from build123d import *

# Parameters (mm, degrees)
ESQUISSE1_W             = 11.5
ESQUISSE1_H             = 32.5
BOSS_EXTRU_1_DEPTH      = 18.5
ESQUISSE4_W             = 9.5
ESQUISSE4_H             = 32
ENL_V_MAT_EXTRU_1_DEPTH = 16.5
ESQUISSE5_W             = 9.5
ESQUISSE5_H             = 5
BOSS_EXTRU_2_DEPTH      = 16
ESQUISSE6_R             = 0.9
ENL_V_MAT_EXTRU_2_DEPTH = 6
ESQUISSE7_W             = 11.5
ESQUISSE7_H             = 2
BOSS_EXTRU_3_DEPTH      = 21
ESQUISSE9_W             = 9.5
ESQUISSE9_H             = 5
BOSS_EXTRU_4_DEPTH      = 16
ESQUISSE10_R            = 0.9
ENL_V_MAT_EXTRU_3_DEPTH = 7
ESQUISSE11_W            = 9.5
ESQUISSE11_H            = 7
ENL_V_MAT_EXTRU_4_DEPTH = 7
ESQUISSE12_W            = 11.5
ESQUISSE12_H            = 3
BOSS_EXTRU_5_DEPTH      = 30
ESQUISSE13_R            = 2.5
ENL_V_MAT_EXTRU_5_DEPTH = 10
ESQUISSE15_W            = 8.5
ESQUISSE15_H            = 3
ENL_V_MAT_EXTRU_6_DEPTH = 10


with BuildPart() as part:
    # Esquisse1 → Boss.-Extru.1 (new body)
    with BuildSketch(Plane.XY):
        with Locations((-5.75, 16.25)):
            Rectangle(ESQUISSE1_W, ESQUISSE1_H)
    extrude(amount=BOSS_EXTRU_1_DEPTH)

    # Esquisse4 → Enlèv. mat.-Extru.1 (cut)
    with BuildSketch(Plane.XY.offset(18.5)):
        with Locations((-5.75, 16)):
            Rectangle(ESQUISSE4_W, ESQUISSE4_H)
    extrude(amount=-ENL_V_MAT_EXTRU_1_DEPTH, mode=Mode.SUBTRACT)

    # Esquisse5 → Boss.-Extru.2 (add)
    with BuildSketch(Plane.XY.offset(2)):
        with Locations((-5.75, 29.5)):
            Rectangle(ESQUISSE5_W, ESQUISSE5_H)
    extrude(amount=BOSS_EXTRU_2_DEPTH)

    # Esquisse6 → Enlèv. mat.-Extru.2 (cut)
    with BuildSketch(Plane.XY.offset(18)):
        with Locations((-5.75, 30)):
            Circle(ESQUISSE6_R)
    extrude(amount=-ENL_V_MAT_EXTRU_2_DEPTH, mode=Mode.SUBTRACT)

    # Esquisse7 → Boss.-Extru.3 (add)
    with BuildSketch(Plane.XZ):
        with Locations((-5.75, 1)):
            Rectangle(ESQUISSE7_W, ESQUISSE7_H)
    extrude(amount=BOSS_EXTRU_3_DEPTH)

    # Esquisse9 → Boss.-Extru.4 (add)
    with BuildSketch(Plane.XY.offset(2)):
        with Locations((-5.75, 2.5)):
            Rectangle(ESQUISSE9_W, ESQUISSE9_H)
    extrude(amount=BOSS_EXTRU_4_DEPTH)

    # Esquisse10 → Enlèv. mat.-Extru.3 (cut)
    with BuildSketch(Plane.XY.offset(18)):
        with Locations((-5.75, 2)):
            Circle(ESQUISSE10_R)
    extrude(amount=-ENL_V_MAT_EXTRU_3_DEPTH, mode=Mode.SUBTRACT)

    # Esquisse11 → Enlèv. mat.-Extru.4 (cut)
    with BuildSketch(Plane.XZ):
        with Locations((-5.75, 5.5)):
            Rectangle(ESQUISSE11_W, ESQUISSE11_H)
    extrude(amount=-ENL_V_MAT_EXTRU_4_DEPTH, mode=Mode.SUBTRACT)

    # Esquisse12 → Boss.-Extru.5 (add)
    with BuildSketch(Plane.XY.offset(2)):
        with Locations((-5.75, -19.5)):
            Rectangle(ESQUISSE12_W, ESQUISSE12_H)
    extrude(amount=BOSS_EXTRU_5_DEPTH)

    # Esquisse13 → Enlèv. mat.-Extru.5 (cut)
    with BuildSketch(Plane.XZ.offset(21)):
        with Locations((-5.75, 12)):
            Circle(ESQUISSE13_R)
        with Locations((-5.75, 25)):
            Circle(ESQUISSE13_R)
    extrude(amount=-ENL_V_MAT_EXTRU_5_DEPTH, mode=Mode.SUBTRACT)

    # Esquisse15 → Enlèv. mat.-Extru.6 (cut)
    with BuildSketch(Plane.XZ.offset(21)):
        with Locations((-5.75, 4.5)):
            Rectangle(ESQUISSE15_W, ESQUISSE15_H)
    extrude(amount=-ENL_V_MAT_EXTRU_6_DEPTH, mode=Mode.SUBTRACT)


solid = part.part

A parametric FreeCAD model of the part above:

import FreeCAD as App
import Part
import Sketcher

V = App.Vector


def add_polygon(sketch, points):
    """Adds a closed chain of lines whose ends are joined by coincident constraints."""
    first, n = sketch.GeometryCount, len(points)
    for a, b in zip(points, points[1:] + points[:1]):
        sketch.addGeometry(Part.LineSegment(App.Vector(*a, 0), App.Vector(*b, 0)), False)
    for i in range(n):
        sketch.addConstraint(Sketcher.Constraint("Coincident", first + i, 2, first + (i + 1) % n, 1))

doc = App.newDocument("Part")
params = doc.addObject("Spreadsheet::Sheet", "Params")
for row, (alias, value) in enumerate([
    ("sketch1_width", "11.5 mm"),
    ("sketch1_height", "32.5 mm"),
    ("pad1_length", "18.5 mm"),
    ("sketch2_height", "32 mm"),
    ("sketch2_width", "9.5 mm"),
    ("pocket1_length", "16.5 mm"),
    ("sketch3_height", "5 mm"),
    ("sketch3_width", "9.5 mm"),
    ("pad2_length", "16 mm"),
    ("sketch4_diameter", "1.8 mm"),
    ("pocket2_length", "6 mm"),
    ("sketch5_height", "2 mm"),
    ("sketch5_width", "11.5 mm"),
    ("pad3_length", "21 mm"),
    ("sketch6_height", "5 mm"),
    ("sketch6_width", "9.5 mm"),
    ("pad4_length", "16 mm"),
    ("sketch7_diameter", "1.8 mm"),
    ("pocket3_length", "7 mm"),
    ("sketch8_height", "7 mm"),
    ("sketch8_width", "9.5 mm"),
    ("pocket4_length", "7 mm"),
    ("sketch9_height", "3 mm"),
    ("sketch9_width", "11.5 mm"),
    ("pad5_length", "30 mm"),
    ("sketch10_diameter", "5 mm"),
    ("pocket5_length", "10 mm"),
    ("sketch11_height", "3 mm"),
    ("sketch11_width", "8.5 mm"),
    ("pocket6_length", "10 mm"),
], start=1):
    params.set(f"A{row}", alias)
    params.set(f"B{row}", "=" + value)
    params.setAlias(f"B{row}", alias)

body = doc.addObject("PartDesign::Body", "Body")

sketch1 = body.newObject("Sketcher::SketchObject", "Sketch")
sketch1.AttachmentSupport = (doc.getObject("XY_Plane"), [""])
sketch1.MapMode = "FlatFace"
add_polygon(sketch1, [(-11.5, 32.5), (-11.5, 0), (0, 0), (0, 32.5)])
sketch1.addConstraint(Sketcher.Constraint("Vertical", 0))
sketch1.addConstraint(Sketcher.Constraint("Horizontal", 1))
sketch1.addConstraint(Sketcher.Constraint("Vertical", 2))
sketch1.addConstraint(Sketcher.Constraint("Horizontal", 3))
sketch1.addConstraint(Sketcher.Constraint("Coincident", 1, 2, -1, 1))
sketch1.addConstraint(Sketcher.Constraint("DistanceX", 1, 1, 1, 2, 11.5))
sketch1.addConstraint(Sketcher.Constraint("DistanceY", 0, 2, 0, 1, 32.5))
sketch1.setExpression("Constraints[9]", "Params.sketch1_width")
sketch1.setExpression("Constraints[10]", "Params.sketch1_height")
pad1 = body.newObject("PartDesign::Pad", "Pad")
pad1.Profile = sketch1
pad1.setExpression("Length", "Params.pad1_length")

sketch2 = body.newObject("Sketcher::SketchObject", "Sketch001")
sketch2.AttachmentSupport = (doc.getObject("XY_Plane"), [""])
sketch2.MapMode = "FlatFace"
sketch2.AttachmentOffset = App.Placement(V(0, 0, 18.5), App.Rotation())
add_polygon(sketch2, [(-10.5, 32), (-10.5, 0), (-1, 0), (-1, 32)])
sketch2.addConstraint(Sketcher.Constraint("Vertical", 0))
sketch2.addConstraint(Sketcher.Constraint("Horizontal", 1))
sketch2.addConstraint(Sketcher.Constraint("Vertical", 2))
sketch2.addConstraint(Sketcher.Constraint("Horizontal", 3))
sketch2.addConstraint(Sketcher.Constraint("PointOnObject", 0, 2, -1))
sketch2.addConstraint(Sketcher.Constraint("DistanceY", 0, 2, 0, 1, 32.0))
sketch2.addConstraint(Sketcher.Constraint("DistanceX", 1, 1, 1, 2, 9.5))
sketch2.addConstraint(Sketcher.Constraint("DistanceX", 1, 2, -1, 1, 1.0))
sketch2.setExpression("Constraints[9]", "Params.sketch2_height")
sketch2.setExpression("Constraints[10]", "Params.sketch2_width")
pocket1 = body.newObject("PartDesign::Pocket", "Pocket")
pocket1.Profile = sketch2
pocket1.setExpression("Length", "Params.pocket1_length")

sketch3 = body.newObject("Sketcher::SketchObject", "Sketch002")
sketch3.AttachmentSupport = (doc.getObject("XY_Plane"), [""])
sketch3.MapMode = "FlatFace"
sketch3.AttachmentOffset = App.Placement(V(0, 0, 2), App.Rotation())
add_polygon(sketch3, [(-10.5, 32), (-10.5, 27), (-1, 27), (-1, 32)])
sketch3.addConstraint(Sketcher.Constraint("Vertical", 0))
sketch3.addConstraint(Sketcher.Constraint("Horizontal", 1))
sketch3.addConstraint(Sketcher.Constraint("Vertical", 2))
sketch3.addConstraint(Sketcher.Constraint("Horizontal", 3))
sketch3.addConstraint(Sketcher.Constraint("DistanceY", 0, 2, 0, 1, 5.0))
sketch3.addConstraint(Sketcher.Constraint("DistanceX", 1, 1, 1, 2, 9.5))
sketch3.addConstraint(Sketcher.Constraint("DistanceY", -1, 1, 0, 2, 27.0))
sketch3.addConstraint(Sketcher.Constraint("DistanceX", 1, 2, -1, 1, 1.0))
sketch3.setExpression("Constraints[8]", "Params.sketch3_height")
sketch3.setExpression("Constraints[9]", "Params.sketch3_width")
pad2 = body.newObject("PartDesign::Pad", "Pad001")
pad2.Profile = sketch3
pad2.setExpression("Length", "Params.pad2_length")

sketch4 = body.newObject("Sketcher::SketchObject", "Sketch003")
sketch4.AttachmentSupport = (doc.getObject("XY_Plane"), [""])
sketch4.MapMode = "FlatFace"
sketch4.AttachmentOffset = App.Placement(V(0, 0, 18), App.Rotation())
sketch4.addGeometry(Part.Circle(V(-5.75, 30, 0), V(0, 0, 1), 0.9), False)
sketch4.addConstraint(Sketcher.Constraint("Diameter", 0, 1.8))
sketch4.addConstraint(Sketcher.Constraint("DistanceY", -1, 1, 0, 3, 30.0))
sketch4.addConstraint(Sketcher.Constraint("DistanceX", 0, 3, -1, 1, 5.75))
sketch4.setExpression("Constraints[0]", "Params.sketch4_diameter")
pocket2 = body.newObject("PartDesign::Pocket", "Pocket001")
pocket2.Profile = sketch4
pocket2.setExpression("Length", "Params.pocket2_length")

sketch5 = body.newObject("Sketcher::SketchObject", "Sketch004")
sketch5.AttachmentSupport = (doc.getObject("XZ_Plane"), [""])
sketch5.MapMode = "FlatFace"
add_polygon(sketch5, [(-11.5, 2), (-11.5, 0), (0, 0), (0, 2)])
sketch5.addConstraint(Sketcher.Constraint("Vertical", 0))
sketch5.addConstraint(Sketcher.Constraint("Horizontal", 1))
sketch5.addConstraint(Sketcher.Constraint("Vertical", 2))
sketch5.addConstraint(Sketcher.Constraint("Horizontal", 3))
sketch5.addConstraint(Sketcher.Constraint("Coincident", 1, 2, -1, 1))
sketch5.addConstraint(Sketcher.Constraint("DistanceY", 0, 2, 0, 1, 2.0))
sketch5.addConstraint(Sketcher.Constraint("DistanceX", 1, 1, 1, 2, 11.5))
sketch5.setExpression("Constraints[9]", "Params.sketch5_height")
sketch5.setExpression("Constraints[10]", "Params.sketch5_width")
pad3 = body.newObject("PartDesign::Pad", "Pad002")
pad3.Profile = sketch5
pad3.setExpression("Length", "Params.pad3_length")

sketch6 = body.newObject("Sketcher::SketchObject", "Sketch005")
sketch6.AttachmentSupport = (doc.getObject("XY_Plane"), [""])
sketch6.MapMode = "FlatFace"
sketch6.AttachmentOffset = App.Placement(V(0, 0, 2), App.Rotation())
add_polygon(sketch6, [(-10.5, 5), (-10.5, 0), (-1, 0), (-1, 5)])
sketch6.addConstraint(Sketcher.Constraint("Vertical", 0))
sketch6.addConstraint(Sketcher.Constraint("Horizontal", 1))
sketch6.addConstraint(Sketcher.Constraint("Vertical", 2))
sketch6.addConstraint(Sketcher.Constraint("Horizontal", 3))
sketch6.addConstraint(Sketcher.Constraint("PointOnObject", 0, 2, -1))
sketch6.addConstraint(Sketcher.Constraint("DistanceY", 0, 2, 0, 1, 5.0))
sketch6.addConstraint(Sketcher.Constraint("DistanceX", 1, 1, 1, 2, 9.5))
sketch6.addConstraint(Sketcher.Constraint("DistanceX", 1, 2, -1, 1, 1.0))
sketch6.setExpression("Constraints[9]", "Params.sketch6_height")
sketch6.setExpression("Constraints[10]", "Params.sketch6_width")
pad4 = body.newObject("PartDesign::Pad", "Pad003")
pad4.Profile = sketch6
pad4.setExpression("Length", "Params.pad4_length")

sketch7 = body.newObject("Sketcher::SketchObject", "Sketch006")
sketch7.AttachmentSupport = (doc.getObject("XY_Plane"), [""])
sketch7.MapMode = "FlatFace"
sketch7.AttachmentOffset = App.Placement(V(0, 0, 18), App.Rotation())
sketch7.addGeometry(Part.Circle(V(-5.75, 2, 0), V(0, 0, 1), 0.9), False)
sketch7.addConstraint(Sketcher.Constraint("Diameter", 0, 1.8))
sketch7.addConstraint(Sketcher.Constraint("DistanceY", -1, 1, 0, 3, 2.0))
sketch7.addConstraint(Sketcher.Constraint("DistanceX", 0, 3, -1, 1, 5.75))
sketch7.setExpression("Constraints[0]", "Params.sketch7_diameter")
pocket3 = body.newObject("PartDesign::Pocket", "Pocket002")
pocket3.Profile = sketch7
pocket3.setExpression("Length", "Params.pocket3_length")

sketch8 = body.newObject("Sketcher::SketchObject", "Sketch007")
sketch8.AttachmentSupport = (doc.getObject("XZ_Plane"), [""])
sketch8.MapMode = "FlatFace"
add_polygon(sketch8, [(-10.5, 9), (-10.5, 2), (-1, 2), (-1, 9)])
sketch8.addConstraint(Sketcher.Constraint("Vertical", 0))
sketch8.addConstraint(Sketcher.Constraint("Horizontal", 1))
sketch8.addConstraint(Sketcher.Constraint("Vertical", 2))
sketch8.addConstraint(Sketcher.Constraint("Horizontal", 3))
sketch8.addConstraint(Sketcher.Constraint("DistanceY", 0, 2, 0, 1, 7.0))
sketch8.addConstraint(Sketcher.Constraint("DistanceX", 1, 1, 1, 2, 9.5))
sketch8.addConstraint(Sketcher.Constraint("DistanceY", -1, 1, 0, 2, 2.0))
sketch8.addConstraint(Sketcher.Constraint("DistanceX", 1, 2, -1, 1, 1.0))
sketch8.setExpression("Constraints[8]", "Params.sketch8_height")
sketch8.setExpression("Constraints[9]", "Params.sketch8_width")
pocket4 = body.newObject("PartDesign::Pocket", "Pocket003")
pocket4.Profile = sketch8
pocket4.setExpression("Length", "Params.pocket4_length")

sketch9 = body.newObject("Sketcher::SketchObject", "Sketch008")
sketch9.AttachmentSupport = (doc.getObject("XY_Plane"), [""])
sketch9.MapMode = "FlatFace"
sketch9.AttachmentOffset = App.Placement(V(0, 0, 2), App.Rotation())
add_polygon(sketch9, [(-11.5, -18), (-11.5, -21), (0, -21), (0, -18)])
sketch9.addConstraint(Sketcher.Constraint("Vertical", 0))
sketch9.addConstraint(Sketcher.Constraint("Horizontal", 1))
sketch9.addConstraint(Sketcher.Constraint("Vertical", 2))
sketch9.addConstraint(Sketcher.Constraint("Horizontal", 3))
sketch9.addConstraint(Sketcher.Constraint("PointOnObject", 1, 2, -2))
sketch9.addConstraint(Sketcher.Constraint("DistanceY", 0, 2, 0, 1, 3.0))
sketch9.addConstraint(Sketcher.Constraint("DistanceX", 1, 1, 1, 2, 11.5))
sketch9.addConstraint(Sketcher.Constraint("DistanceY", 0, 2, -1, 1, 21.0))
sketch9.setExpression("Constraints[9]", "Params.sketch9_height")
sketch9.setExpression("Constraints[10]", "Params.sketch9_width")
pad5 = body.newObject("PartDesign::Pad", "Pad004")
pad5.Profile = sketch9
pad5.setExpression("Length", "Params.pad5_length")

sketch10 = body.newObject("Sketcher::SketchObject", "Sketch009")
sketch10.AttachmentSupport = (doc.getObject("XZ_Plane"), [""])
sketch10.MapMode = "FlatFace"
sketch10.AttachmentOffset = App.Placement(V(0, 0, 21), App.Rotation())
sketch10.addGeometry(Part.Circle(V(-5.75, 12, 0), V(0, 0, 1), 2.5), False)
sketch10.addGeometry(Part.Circle(V(-5.75, 25, 0), V(0, 0, 1), 2.5), False)
sketch10.addConstraint(Sketcher.Constraint("Equal", 0, 1))
sketch10.addConstraint(Sketcher.Constraint("Vertical", 0, 3, 1, 3))
sketch10.addConstraint(Sketcher.Constraint("Diameter", 0, 5.0))
sketch10.addConstraint(Sketcher.Constraint("DistanceY", -1, 1, 0, 3, 12.0))
sketch10.addConstraint(Sketcher.Constraint("DistanceY", -1, 1, 1, 3, 25.0))
sketch10.addConstraint(Sketcher.Constraint("DistanceX", 0, 3, -1, 1, 5.75))
sketch10.setExpression("Constraints[2]", "Params.sketch10_diameter")
pocket5 = body.newObject("PartDesign::Pocket", "Pocket004")
pocket5.Profile = sketch10
pocket5.setExpression("Length", "Params.pocket5_length")

sketch11 = body.newObject("Sketcher::SketchObject", "Sketch010")
sketch11.AttachmentSupport = (doc.getObject("XZ_Plane"), [""])
sketch11.MapMode = "FlatFace"
sketch11.AttachmentOffset = App.Placement(V(0, 0, 21), App.Rotation())
add_polygon(sketch11, [(-10, 6), (-10, 3), (-1.5, 3), (-1.5, 6)])
sketch11.addConstraint(Sketcher.Constraint("Vertical", 0))
sketch11.addConstraint(Sketcher.Constraint("Horizontal", 1))
sketch11.addConstraint(Sketcher.Constraint("Vertical", 2))
sketch11.addConstraint(Sketcher.Constraint("Horizontal", 3))
sketch11.addConstraint(Sketcher.Constraint("DistanceY", 0, 2, 0, 1, 3.0))
sketch11.addConstraint(Sketcher.Constraint("DistanceX", 1, 1, 1, 2, 8.5))
sketch11.addConstraint(Sketcher.Constraint("DistanceX", 0, 2, -1, 1, 10.0))
sketch11.addConstraint(Sketcher.Constraint("DistanceY", -1, 1, 0, 2, 3.0))
sketch11.setExpression("Constraints[8]", "Params.sketch11_height")
sketch11.setExpression("Constraints[9]", "Params.sketch11_width")
pocket6 = body.newObject("PartDesign::Pocket", "Pocket005")
pocket6.Profile = sketch11
pocket6.setExpression("Length", "Params.pocket6_length")

doc.recompute()
